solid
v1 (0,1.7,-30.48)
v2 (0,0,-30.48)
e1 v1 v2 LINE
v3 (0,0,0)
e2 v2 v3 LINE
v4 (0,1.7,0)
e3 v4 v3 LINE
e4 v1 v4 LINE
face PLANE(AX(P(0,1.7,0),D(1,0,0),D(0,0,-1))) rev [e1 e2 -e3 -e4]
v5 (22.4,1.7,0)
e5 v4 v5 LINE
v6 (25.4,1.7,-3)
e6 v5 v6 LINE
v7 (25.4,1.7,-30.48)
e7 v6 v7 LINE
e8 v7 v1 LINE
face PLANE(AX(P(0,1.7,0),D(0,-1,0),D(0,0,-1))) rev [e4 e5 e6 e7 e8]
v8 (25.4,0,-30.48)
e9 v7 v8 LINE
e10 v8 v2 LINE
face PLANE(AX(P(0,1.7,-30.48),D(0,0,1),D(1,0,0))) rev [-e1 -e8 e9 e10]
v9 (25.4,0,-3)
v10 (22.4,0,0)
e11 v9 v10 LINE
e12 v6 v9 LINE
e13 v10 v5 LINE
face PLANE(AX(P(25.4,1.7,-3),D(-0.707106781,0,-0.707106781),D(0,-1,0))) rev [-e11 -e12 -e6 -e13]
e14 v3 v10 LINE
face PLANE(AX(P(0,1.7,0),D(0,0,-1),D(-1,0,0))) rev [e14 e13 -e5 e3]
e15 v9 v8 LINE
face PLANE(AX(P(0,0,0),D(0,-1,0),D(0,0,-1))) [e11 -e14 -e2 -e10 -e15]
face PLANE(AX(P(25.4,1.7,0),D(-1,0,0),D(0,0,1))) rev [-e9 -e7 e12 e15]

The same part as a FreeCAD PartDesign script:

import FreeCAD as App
import Part
import Sketcher
Q = App.Units.Quantity


def edges_at(feature, points):
    """Names of the edges that pass closest to the given points."""
    edges = feature.Shape.Edges
    near = lambda p: min(range(len(edges)), key=lambda i: edges[i].distToShape(Part.Vertex(*p))[0])
    return sorted({f"Edge{near(p) + 1}" for p in points})

doc = App.newDocument("Part")
body = doc.addObject("PartDesign::Body", "Body")

# Sketch on XZ plane
sketch1 = doc.addObject("Sketcher::SketchObject", "Sketch")
body.addObject(sketch1)
sketch1.AttachmentSupport = (doc.XZ_Plane, [""])
sketch1.MapMode = "FlatFace"
sketch1.addGeometry([
    Part.LineSegment(App.Vector(0, -30, 0), App.Vector(0, 0, 0)),
    Part.LineSegment(App.Vector(0, 0, 0), App.Vector(25, 0, 0)),
    Part.LineSegment(App.Vector(25, 0, 0), App.Vector(25, -30, 0)),
    Part.LineSegment(App.Vector(25, -30, 0), App.Vector(0, -30, 0)),
], False)
sketch1.addConstraint([
    Sketcher.Constraint("Coincident", 0, 2, 1, 1),
    Sketcher.Constraint("Coincident", 1, 2, 2, 1),
    Sketcher.Constraint("Coincident", 2, 2, 3, 1),
    Sketcher.Constraint("Coincident", 3, 2, 0, 1),
    Sketcher.Constraint("Vertical", 0),
    Sketcher.Constraint("Horizontal", 1),
    Sketcher.Constraint("Vertical", 2),
    Sketcher.Constraint("Horizontal", 3),
    Sketcher.Constraint("Coincident", 0, 2, -1, 1),
    Sketcher.Constraint("DistanceX", 1, 1, 1, 2, Q("25.4 mm")),
    Sketcher.Constraint("DistanceY", 0, 1, 0, 2, Q("30.48 mm")),
])
pad1 = doc.addObject("PartDesign::Pad", "Pad")
body.addObject(pad1)
pad1.Profile = sketch1
pad1.Length = 1.7
pad1.Reversed = True
doc.recompute()

chamfer = doc.addObject("PartDesign::Chamfer", "Chamfer")
body.addObject(chamfer)
chamfer.Base = (pad1, edges_at(pad1, [(25.4, 0.85, 0)]))
chamfer.Size = 3

doc.recompute()
